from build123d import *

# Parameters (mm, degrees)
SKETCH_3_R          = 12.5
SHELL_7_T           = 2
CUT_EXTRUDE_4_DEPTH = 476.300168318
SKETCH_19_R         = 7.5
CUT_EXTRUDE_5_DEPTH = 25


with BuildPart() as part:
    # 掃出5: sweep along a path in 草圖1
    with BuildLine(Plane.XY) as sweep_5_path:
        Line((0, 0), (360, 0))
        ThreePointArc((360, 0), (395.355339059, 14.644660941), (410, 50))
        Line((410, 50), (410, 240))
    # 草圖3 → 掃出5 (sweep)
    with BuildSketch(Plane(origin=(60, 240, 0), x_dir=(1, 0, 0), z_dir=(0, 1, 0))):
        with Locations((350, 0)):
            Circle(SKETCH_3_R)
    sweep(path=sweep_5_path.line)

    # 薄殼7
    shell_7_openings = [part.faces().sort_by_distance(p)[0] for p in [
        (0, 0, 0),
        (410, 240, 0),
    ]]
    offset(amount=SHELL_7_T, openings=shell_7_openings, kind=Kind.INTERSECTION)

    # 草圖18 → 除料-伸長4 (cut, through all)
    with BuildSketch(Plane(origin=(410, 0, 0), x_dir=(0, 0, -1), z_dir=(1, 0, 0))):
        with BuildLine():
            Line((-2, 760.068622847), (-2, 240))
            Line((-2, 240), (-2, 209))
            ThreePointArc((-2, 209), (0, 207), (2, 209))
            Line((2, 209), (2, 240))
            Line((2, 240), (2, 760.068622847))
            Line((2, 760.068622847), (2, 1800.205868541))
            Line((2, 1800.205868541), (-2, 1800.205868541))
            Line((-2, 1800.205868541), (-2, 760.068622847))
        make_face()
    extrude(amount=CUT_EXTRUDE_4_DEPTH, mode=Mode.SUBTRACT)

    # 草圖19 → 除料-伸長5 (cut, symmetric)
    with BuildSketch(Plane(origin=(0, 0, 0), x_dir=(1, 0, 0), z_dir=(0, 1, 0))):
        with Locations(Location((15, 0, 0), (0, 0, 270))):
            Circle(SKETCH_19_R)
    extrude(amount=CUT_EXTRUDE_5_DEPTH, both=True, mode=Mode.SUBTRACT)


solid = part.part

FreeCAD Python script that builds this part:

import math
import FreeCAD as App
import Part
import Sketcher

V = App.Vector


def faces_at(feature, points):
    """Names of the faces that lie closest to the given points."""
    faces = feature.Shape.Faces
    near = lambda p: min(range(len(faces)), key=lambda i: faces[i].distToShape(Part.Vertex(*p))[0])
    return sorted({f"Face{near(p) + 1}" for p in points})

doc = App.newDocument("Part")
params = doc.addObject("Spreadsheet::Sheet", "Params")
for row, (alias, value) in enumerate([
    ("sketch1_diameter", "25 mm"),
    ("sketch2_radius", "50 mm"),
    ("sketch2_width", "360 mm"),
    ("sketch2_height", "190 mm"),
    ("thickness_wall", "2 mm"),
    ("sketch3_radius", "2 mm"),
    ("sketch4_diameter", "15 mm"),
    ("pocket2_length", "50 mm"),
], start=1):
    params.set(f"A{row}", alias)
    params.set(f"B{row}", "=" + value)
    params.setAlias(f"B{row}", alias)

body = doc.addObject("PartDesign::Body", "Body")

sketch1 = body.newObject("Sketcher::SketchObject", "Sketch")
sketch1.AttachmentSupport = (doc.getObject("XZ_Plane"), [""])
sketch1.MapMode = "FlatFace"
sketch1.AttachmentOffset = App.Placement(V(0, 0, -240), App.Rotation())
sketch1.addGeometry(Part.Circle(V(410, 0, 0), V(0, 0, 1), 12), False)
sketch1.addConstraint([
    Sketcher.Constraint("PointOnObject", 0, 3, -1),
    Sketcher.Constraint("Diameter", 0, 25.0),
    Sketcher.Constraint("DistanceX", -1, 1, 0, 3, 410.0),
])
sketch1.setExpression("Constraints[1]", "Params.sketch1_diameter")

sketch2 = body.newObject("Sketcher::SketchObject", "Sketch001")
sketch2.AttachmentSupport = (doc.getObject("XY_Plane"), [""])
sketch2.MapMode = "FlatFace"
sketch2.addGeometry([
    Part.LineSegment(V(0, 0, 0), V(360, 0, 0)),
    Part.ArcOfCircle(Part.Circle(V(360, 50, 0), V(0, 0, 1), 50), math.radians(-90), math.radians(0)),
    Part.LineSegment(V(410, 50, 0), V(410, 240, 0)),
], False)
sketch2.addConstraint([
    Sketcher.Constraint("Tangent", 0, 2, 1, 1),
    Sketcher.Constraint("Tangent", 1, 2, 2, 1),
    Sketcher.Constraint("Horizontal", 0),
    Sketcher.Constraint("Vertical", 2),
    Sketcher.Constraint("Coincident", 0, 1, -1, 1),
    Sketcher.Constraint("Radius", 1, 50.0),
    Sketcher.Constraint("DistanceX", 0, 1, 0, 2, 360.0),
    Sketcher.Constraint("DistanceY", 2, 1, 2, 2, 190.0),
])
sketch2.setExpression("Constraints[5]", "Params.sketch2_radius")
sketch2.setExpression("Constraints[6]", "Params.sketch2_width")
sketch2.setExpression("Constraints[7]", "Params.sketch2_height")
doc.recompute()

additivepipe = body.newObject("PartDesign::AdditivePipe", "AdditivePipe")
additivepipe.Profile = sketch1
additivepipe.Spine = (sketch2, ["Edge1", "Edge2", "Edge3"])
doc.recompute()

thickness = body.newObject("PartDesign::Thickness", "Thickness")
thickness.Base = (additivepipe, faces_at(additivepipe, [(0, 0, 0), (410, 240, 0)]))
thickness.setExpression("Value", "Params.thickness_wall")
thickness.Reversed = False
thickness.Join = "Intersection"

sketch3 = body.newObject("Sketcher::SketchObject", "Sketch002")
sketch3.AttachmentSupport = (doc.getObject("YZ_Plane"), [""])
sketch3.MapMode = "FlatFace"
sketch3.AttachmentOffset = App.Placement(V(0, 0, 410), App.Rotation())
sketch3.addGeometry([
    Part.ArcOfCircle(Part.Circle(V(209, 0, 0), V(0, 0, 1), 2), math.radians(90), math.radians(270)),
    Part.LineSegment(V(209, -2, 0), V(1800.2, -2, 0)),
    Part.LineSegment(V(1800.2, -2, 0), V(1800.2, 2, 0)),
    Part.LineSegment(V(1800.2, 2, 0), V(209, 2, 0)),
], False)
sketch3.addConstraint([
    Sketcher.Constraint("Tangent", 0, 2, 1, 1),
    Sketcher.Constraint("Coincident", 1, 2, 2, 1),
    Sketcher.Constraint("Coincident", 2, 2, 3, 1),
    Sketcher.Constraint("Tangent", 3, 2, 0, 1),
    Sketcher.Constraint("Horizontal", 1),
    Sketcher.Constraint("Vertical", 2),
    Sketcher.Constraint("Horizontal", 3),
    Sketcher.Constraint("PointOnObject", 0, 3, -1),
    Sketcher.Constraint("Radius", 0, 2.0),
    Sketcher.Constraint("DistanceX", -1, 1, 0, 3, 209.0),
    Sketcher.Constraint("DistanceX", 1, 1, 1, 2, 1591.205869),
])
sketch3.setExpression("Constraints[8]", "Params.sketch3_radius")
pocket1 = body.newObject("PartDesign::Pocket", "Pocket")
pocket1.Profile = sketch3
pocket1.Type = "ThroughAll"
pocket1.Reversed = True

sketch4 = body.newObject("Sketcher::SketchObject", "Sketch003")
sketch4.AttachmentSupport = (doc.getObject("XZ_Plane"), [""])
sketch4.MapMode = "FlatFace"
sketch4.addGeometry(Part.Circle(V(15, 0, 0), V(0, 0, 1), 8), False)
sketch4.addConstraint([
    Sketcher.Constraint("PointOnObject", 0, 3, -1),
    Sketcher.Constraint("Diameter", 0, 15.0),
    Sketcher.Constraint("DistanceX", -1, 1, 0, 3, 15.0),
])
sketch4.setExpression("Constraints[1]", "Params.sketch4_diameter")
pocket2 = body.newObject("PartDesign::Pocket", "Pocket001")
pocket2.Profile = sketch4
pocket2.setExpression("Length", "Params.pocket2_length")
pocket2.Midplane = True

doc.recompute()
